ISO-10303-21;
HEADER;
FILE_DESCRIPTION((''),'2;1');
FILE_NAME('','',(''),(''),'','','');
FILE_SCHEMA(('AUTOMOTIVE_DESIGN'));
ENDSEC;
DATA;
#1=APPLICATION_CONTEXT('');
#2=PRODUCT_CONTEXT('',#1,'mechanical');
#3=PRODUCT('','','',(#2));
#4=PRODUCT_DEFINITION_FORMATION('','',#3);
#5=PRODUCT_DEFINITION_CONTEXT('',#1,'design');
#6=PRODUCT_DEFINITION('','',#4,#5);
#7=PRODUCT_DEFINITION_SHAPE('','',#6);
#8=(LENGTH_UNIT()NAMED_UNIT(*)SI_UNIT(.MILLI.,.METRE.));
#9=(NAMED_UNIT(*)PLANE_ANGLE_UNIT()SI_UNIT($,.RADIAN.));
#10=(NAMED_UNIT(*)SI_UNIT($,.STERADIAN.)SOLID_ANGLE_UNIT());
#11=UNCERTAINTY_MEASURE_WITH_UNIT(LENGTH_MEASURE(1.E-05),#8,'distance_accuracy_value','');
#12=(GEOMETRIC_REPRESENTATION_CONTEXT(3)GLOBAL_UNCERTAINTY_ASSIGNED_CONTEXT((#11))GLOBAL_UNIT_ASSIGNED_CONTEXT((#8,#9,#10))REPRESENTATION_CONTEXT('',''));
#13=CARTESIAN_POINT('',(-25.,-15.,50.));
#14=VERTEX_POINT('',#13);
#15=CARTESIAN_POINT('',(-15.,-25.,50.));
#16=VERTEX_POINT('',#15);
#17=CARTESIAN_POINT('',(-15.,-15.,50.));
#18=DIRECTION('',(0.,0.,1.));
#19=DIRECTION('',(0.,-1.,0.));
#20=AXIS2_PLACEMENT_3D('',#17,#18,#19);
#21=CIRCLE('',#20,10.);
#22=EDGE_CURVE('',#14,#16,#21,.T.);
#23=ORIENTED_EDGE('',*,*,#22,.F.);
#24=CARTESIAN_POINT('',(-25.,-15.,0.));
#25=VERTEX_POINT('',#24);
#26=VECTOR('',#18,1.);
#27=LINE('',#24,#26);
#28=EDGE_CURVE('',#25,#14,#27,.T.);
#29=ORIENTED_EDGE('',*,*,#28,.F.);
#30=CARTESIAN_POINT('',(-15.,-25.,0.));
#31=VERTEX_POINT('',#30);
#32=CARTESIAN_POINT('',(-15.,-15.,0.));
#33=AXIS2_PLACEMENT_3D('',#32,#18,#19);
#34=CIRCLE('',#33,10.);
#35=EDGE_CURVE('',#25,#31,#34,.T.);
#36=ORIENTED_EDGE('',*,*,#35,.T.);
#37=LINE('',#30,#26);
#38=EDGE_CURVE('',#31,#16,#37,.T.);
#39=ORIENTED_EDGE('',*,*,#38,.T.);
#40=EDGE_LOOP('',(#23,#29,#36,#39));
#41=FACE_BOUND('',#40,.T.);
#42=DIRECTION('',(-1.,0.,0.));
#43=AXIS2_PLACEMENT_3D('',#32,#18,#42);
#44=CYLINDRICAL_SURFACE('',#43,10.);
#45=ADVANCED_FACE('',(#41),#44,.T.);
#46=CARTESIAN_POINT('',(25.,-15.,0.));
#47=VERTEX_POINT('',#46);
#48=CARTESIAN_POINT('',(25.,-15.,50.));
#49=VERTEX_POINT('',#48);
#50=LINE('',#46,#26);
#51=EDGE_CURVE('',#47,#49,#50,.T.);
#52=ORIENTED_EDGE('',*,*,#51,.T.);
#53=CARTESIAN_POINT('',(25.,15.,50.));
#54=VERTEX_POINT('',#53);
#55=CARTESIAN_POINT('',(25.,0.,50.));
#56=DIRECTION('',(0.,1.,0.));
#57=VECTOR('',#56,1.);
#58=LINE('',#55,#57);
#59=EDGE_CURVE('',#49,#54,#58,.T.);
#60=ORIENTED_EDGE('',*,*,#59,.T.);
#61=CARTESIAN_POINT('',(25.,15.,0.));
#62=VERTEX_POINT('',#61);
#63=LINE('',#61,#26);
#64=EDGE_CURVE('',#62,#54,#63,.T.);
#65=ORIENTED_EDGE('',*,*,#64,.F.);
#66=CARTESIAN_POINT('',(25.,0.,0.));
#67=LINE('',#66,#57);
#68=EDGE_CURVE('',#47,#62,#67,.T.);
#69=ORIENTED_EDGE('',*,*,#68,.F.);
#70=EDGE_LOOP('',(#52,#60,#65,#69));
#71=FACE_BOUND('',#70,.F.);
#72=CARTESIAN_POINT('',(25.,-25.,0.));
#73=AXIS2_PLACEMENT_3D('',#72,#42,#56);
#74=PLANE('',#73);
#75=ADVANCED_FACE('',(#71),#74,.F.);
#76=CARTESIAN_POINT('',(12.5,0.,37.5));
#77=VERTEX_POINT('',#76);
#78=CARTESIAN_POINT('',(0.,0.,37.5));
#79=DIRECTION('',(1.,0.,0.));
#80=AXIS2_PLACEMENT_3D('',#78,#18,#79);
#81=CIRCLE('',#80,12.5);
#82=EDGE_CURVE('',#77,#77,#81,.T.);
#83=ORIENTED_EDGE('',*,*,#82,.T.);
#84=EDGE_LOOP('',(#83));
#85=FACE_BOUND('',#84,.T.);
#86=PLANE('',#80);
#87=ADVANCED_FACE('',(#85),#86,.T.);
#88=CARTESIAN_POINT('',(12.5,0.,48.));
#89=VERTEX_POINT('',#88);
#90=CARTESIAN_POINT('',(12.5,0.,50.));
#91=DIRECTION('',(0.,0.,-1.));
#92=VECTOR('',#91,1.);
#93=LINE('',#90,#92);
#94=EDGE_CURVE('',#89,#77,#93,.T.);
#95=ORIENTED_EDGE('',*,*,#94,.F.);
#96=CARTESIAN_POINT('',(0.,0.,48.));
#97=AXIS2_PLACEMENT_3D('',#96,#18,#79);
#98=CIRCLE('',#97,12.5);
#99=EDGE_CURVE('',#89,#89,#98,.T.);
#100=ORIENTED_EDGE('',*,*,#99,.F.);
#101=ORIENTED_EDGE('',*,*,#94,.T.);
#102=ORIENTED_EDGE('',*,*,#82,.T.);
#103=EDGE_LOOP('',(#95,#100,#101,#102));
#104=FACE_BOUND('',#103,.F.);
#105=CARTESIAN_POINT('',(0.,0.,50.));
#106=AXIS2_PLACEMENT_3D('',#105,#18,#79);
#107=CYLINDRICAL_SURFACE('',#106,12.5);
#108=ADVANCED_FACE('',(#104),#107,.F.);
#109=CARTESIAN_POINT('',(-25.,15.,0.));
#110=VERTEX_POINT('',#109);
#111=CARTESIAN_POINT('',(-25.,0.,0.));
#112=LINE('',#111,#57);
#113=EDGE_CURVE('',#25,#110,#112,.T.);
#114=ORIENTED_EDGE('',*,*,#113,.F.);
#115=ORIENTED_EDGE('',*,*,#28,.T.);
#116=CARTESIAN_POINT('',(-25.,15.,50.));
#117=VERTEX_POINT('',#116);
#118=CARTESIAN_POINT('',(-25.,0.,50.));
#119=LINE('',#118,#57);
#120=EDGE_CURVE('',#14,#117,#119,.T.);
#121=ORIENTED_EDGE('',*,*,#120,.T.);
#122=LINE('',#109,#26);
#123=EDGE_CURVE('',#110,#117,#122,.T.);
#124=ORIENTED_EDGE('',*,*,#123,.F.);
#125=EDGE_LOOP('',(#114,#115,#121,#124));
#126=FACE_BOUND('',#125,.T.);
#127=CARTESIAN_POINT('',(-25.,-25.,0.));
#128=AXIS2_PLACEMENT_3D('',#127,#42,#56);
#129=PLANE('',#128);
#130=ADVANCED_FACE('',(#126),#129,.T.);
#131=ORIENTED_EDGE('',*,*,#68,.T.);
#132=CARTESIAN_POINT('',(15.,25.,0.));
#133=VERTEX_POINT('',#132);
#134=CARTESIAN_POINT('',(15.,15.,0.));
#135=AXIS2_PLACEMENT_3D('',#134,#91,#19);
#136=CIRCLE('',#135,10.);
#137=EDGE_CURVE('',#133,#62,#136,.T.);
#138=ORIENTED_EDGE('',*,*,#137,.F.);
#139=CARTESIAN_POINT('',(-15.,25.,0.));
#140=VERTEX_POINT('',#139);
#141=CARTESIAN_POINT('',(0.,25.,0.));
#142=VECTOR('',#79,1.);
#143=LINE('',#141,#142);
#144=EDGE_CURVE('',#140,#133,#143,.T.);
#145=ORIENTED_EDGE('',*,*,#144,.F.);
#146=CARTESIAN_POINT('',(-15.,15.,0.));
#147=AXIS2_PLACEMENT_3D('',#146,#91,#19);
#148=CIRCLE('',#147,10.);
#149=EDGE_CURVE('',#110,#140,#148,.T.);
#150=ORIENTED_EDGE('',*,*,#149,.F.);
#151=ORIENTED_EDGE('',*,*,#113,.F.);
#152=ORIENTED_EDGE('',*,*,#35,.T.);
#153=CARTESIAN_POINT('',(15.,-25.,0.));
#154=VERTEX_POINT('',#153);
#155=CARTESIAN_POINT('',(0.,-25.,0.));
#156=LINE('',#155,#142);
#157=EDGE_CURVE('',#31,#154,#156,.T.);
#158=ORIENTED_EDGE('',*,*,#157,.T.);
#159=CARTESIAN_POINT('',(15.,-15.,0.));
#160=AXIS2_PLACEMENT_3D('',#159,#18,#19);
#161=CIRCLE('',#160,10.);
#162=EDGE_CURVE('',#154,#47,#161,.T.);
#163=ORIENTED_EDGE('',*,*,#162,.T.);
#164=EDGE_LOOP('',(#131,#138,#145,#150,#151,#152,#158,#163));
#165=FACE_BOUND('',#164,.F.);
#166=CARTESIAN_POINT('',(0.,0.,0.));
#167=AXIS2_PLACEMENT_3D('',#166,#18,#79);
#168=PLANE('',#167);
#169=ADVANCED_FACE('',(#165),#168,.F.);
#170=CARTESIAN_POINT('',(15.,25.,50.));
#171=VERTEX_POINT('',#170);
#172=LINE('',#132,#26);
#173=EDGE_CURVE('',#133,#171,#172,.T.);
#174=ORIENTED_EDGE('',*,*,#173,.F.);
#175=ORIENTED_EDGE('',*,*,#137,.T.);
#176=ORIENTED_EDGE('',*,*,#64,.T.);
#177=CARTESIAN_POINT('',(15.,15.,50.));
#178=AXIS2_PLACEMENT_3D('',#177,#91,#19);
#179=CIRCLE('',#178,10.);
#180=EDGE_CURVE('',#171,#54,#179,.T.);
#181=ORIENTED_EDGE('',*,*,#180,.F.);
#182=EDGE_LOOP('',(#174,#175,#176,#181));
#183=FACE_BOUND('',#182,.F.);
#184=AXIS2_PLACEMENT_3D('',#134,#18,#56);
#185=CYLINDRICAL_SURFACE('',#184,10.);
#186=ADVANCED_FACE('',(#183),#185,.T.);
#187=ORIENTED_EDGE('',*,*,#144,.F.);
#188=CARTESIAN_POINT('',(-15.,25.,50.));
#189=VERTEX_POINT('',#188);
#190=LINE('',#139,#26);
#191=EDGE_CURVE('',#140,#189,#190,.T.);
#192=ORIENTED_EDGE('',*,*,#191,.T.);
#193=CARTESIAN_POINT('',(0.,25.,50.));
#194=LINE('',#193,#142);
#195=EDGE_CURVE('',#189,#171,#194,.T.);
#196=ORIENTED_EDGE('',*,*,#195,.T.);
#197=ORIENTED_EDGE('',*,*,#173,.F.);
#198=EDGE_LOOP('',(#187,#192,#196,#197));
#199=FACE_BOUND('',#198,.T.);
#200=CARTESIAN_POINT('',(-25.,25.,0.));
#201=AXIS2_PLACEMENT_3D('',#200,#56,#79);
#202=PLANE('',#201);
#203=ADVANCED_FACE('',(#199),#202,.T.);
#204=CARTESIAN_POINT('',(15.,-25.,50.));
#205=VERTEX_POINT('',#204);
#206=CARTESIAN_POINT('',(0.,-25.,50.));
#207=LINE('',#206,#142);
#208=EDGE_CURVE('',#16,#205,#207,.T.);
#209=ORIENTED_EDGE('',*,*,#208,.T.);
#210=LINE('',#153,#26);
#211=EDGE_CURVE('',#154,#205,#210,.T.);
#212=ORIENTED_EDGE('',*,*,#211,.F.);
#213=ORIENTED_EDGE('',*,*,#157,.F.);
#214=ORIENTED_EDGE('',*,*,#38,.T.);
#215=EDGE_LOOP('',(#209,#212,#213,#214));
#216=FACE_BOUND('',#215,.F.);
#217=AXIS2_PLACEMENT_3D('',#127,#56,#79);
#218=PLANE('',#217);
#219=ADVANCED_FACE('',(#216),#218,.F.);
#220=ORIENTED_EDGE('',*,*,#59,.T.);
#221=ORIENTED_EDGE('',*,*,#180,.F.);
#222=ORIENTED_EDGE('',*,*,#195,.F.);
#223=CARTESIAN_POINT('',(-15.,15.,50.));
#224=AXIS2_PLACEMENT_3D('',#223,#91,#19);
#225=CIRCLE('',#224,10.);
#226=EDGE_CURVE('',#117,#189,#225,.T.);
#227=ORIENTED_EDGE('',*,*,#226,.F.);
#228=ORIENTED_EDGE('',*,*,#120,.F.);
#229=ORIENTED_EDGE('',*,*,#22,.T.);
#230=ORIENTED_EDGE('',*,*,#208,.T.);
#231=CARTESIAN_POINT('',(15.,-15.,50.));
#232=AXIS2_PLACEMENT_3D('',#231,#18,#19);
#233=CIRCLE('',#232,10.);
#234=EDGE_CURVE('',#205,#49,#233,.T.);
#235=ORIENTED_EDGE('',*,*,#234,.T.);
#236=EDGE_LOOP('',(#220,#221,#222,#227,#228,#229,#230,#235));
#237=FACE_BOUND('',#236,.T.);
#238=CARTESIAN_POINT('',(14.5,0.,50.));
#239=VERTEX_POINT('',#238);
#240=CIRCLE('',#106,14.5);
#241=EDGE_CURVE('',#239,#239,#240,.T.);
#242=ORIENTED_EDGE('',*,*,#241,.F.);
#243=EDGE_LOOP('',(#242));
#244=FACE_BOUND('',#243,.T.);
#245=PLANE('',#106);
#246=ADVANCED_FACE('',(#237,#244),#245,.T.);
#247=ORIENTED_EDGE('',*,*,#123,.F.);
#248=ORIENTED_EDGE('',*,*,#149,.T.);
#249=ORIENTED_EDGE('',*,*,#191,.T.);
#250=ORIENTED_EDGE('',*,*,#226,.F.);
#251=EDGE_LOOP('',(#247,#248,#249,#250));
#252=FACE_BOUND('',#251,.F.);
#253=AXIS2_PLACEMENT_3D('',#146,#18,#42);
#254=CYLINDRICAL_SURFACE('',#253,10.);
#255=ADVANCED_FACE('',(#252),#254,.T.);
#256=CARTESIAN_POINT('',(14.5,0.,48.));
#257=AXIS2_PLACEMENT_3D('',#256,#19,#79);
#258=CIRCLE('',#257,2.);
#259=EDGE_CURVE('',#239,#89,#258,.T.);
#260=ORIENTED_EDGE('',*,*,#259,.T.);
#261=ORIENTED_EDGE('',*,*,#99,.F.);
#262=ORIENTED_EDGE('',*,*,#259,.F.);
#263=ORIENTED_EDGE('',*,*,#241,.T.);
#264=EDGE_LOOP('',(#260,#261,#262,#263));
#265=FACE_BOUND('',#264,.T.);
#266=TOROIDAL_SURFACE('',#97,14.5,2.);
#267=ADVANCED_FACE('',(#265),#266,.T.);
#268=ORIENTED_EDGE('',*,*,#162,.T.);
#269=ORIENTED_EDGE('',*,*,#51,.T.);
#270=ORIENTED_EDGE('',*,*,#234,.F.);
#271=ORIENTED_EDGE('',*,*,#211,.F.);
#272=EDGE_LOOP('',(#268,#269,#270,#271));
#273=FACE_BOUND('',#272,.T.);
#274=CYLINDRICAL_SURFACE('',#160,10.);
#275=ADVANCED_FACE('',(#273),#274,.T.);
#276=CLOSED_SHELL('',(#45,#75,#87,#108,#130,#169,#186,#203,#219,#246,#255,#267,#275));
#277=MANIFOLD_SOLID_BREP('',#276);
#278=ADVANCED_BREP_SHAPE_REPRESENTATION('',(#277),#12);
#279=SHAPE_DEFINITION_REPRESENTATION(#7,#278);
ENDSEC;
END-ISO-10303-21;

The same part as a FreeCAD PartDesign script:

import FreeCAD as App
import Part
import Sketcher
from FreeCAD import Vector
Q = App.Units.Quantity


def edges_at(feature, points):
    """Names of the edges that pass closest to the given points."""
    edges = feature.Shape.Edges
    near = lambda p: min(range(len(edges)), key=lambda i: edges[i].distToShape(Part.Vertex(*p))[0])
    return sorted({f"Edge{near(p) + 1}" for p in points})

doc = App.newDocument("Part")
params = doc.addObject("Spreadsheet::Sheet", "Params")
for row, (alias, value) in enumerate([
    ("sketch1_width", "50 mm"),
    ("pad1_length", "50 mm"),
    ("sketch2_diameter", "25 mm"),
    ("pocket1_length", "12.5 mm"),
    ("fillet_radius", "10 mm"),
    ("fillet2_radius", "2 mm"),
], start=1):
    params.set(f"A{row}", alias)
    params.set(f"B{row}", "=" + value)
    params.setAlias(f"B{row}", alias)

body = doc.addObject("PartDesign::Body", "Body")

sketch1 = body.newObject("Sketcher::SketchObject", "Sketch")
sketch1.AttachmentSupport = (doc.getObject("XY_Plane"), [""])
sketch1.MapMode = "FlatFace"
sketch1.addGeometry([
    Part.LineSegment(Vector(-25, 25, 0), Vector(-25, -25, 0)),
    Part.LineSegment(Vector(-25, -25, 0), Vector(25, -25, 0)),
    Part.LineSegment(Vector(25, -25, 0), Vector(25, 25, 0)),
    Part.LineSegment(Vector(25, 25, 0), Vector(-25, 25, 0)),
], False)
sketch1.addConstraint([
    Sketcher.Constraint("Coincident", 0, 2, 1, 1),
    Sketcher.Constraint("Coincident", 1, 2, 2, 1),
    Sketcher.Constraint("Coincident", 2, 2, 3, 1),
    Sketcher.Constraint("Coincident", 3, 2, 0, 1),
    Sketcher.Constraint("Vertical", 0),
    Sketcher.Constraint("Horizontal", 1),
    Sketcher.Constraint("Vertical", 2),
    Sketcher.Constraint("Horizontal", 3),
    Sketcher.Constraint("Symmetric", 0, 2, 2, 2, -1, 1),
    Sketcher.Constraint("Equal", 3, 0),
    Sketcher.Constraint("DistanceX", 1, 1, 1, 2, Q("50 mm")),
])
sketch1.setExpression("Constraints[10]", "Params.sketch1_width")
pad1 = body.newObject("PartDesign::Pad", "Pad")
pad1.Profile = sketch1
pad1.setExpression("Length", "Params.pad1_length")

sketch2 = body.newObject("Sketcher::SketchObject", "Sketch001")
sketch2.AttachmentSupport = (doc.getObject("XY_Plane"), [""])
sketch2.MapMode = "FlatFace"
sketch2.AttachmentOffset = App.Placement(Vector(0, 0, 50), App.Rotation())
sketch2.addGeometry(Part.Circle(Vector(0, 0, 0), Vector(0, 0, 1), 12), False)
sketch2.addConstraint([
    Sketcher.Constraint("Coincident", 0, 3, -1, 1),
    Sketcher.Constraint("Diameter", 0, Q("25 mm")),
])
sketch2.setExpression("Constraints[1]", "Params.sketch2_diameter")
pocket1 = body.newObject("PartDesign::Pocket", "Pocket")
pocket1.Profile = sketch2
pocket1.setExpression("Length", "Params.pocket1_length")
doc.recompute()

fillet = body.newObject("PartDesign::Fillet", "Fillet")
fillet.Base = (pocket1, edges_at(pocket1, [
    (-25, -25, 25),
    (-25, 25, 25),
    (25, -25, 25),
    (25, 25, 25),
]))
fillet.setExpression("Radius", "Params.fillet_radius")
doc.recompute()

fillet2 = body.newObject("PartDesign::Fillet", "Fillet001")
fillet2.Base = (fillet, edges_at(fillet, [(-12.5, 0, 50)]))
fillet2.setExpression("Radius", "Params.fillet2_radius")

doc.recompute()
